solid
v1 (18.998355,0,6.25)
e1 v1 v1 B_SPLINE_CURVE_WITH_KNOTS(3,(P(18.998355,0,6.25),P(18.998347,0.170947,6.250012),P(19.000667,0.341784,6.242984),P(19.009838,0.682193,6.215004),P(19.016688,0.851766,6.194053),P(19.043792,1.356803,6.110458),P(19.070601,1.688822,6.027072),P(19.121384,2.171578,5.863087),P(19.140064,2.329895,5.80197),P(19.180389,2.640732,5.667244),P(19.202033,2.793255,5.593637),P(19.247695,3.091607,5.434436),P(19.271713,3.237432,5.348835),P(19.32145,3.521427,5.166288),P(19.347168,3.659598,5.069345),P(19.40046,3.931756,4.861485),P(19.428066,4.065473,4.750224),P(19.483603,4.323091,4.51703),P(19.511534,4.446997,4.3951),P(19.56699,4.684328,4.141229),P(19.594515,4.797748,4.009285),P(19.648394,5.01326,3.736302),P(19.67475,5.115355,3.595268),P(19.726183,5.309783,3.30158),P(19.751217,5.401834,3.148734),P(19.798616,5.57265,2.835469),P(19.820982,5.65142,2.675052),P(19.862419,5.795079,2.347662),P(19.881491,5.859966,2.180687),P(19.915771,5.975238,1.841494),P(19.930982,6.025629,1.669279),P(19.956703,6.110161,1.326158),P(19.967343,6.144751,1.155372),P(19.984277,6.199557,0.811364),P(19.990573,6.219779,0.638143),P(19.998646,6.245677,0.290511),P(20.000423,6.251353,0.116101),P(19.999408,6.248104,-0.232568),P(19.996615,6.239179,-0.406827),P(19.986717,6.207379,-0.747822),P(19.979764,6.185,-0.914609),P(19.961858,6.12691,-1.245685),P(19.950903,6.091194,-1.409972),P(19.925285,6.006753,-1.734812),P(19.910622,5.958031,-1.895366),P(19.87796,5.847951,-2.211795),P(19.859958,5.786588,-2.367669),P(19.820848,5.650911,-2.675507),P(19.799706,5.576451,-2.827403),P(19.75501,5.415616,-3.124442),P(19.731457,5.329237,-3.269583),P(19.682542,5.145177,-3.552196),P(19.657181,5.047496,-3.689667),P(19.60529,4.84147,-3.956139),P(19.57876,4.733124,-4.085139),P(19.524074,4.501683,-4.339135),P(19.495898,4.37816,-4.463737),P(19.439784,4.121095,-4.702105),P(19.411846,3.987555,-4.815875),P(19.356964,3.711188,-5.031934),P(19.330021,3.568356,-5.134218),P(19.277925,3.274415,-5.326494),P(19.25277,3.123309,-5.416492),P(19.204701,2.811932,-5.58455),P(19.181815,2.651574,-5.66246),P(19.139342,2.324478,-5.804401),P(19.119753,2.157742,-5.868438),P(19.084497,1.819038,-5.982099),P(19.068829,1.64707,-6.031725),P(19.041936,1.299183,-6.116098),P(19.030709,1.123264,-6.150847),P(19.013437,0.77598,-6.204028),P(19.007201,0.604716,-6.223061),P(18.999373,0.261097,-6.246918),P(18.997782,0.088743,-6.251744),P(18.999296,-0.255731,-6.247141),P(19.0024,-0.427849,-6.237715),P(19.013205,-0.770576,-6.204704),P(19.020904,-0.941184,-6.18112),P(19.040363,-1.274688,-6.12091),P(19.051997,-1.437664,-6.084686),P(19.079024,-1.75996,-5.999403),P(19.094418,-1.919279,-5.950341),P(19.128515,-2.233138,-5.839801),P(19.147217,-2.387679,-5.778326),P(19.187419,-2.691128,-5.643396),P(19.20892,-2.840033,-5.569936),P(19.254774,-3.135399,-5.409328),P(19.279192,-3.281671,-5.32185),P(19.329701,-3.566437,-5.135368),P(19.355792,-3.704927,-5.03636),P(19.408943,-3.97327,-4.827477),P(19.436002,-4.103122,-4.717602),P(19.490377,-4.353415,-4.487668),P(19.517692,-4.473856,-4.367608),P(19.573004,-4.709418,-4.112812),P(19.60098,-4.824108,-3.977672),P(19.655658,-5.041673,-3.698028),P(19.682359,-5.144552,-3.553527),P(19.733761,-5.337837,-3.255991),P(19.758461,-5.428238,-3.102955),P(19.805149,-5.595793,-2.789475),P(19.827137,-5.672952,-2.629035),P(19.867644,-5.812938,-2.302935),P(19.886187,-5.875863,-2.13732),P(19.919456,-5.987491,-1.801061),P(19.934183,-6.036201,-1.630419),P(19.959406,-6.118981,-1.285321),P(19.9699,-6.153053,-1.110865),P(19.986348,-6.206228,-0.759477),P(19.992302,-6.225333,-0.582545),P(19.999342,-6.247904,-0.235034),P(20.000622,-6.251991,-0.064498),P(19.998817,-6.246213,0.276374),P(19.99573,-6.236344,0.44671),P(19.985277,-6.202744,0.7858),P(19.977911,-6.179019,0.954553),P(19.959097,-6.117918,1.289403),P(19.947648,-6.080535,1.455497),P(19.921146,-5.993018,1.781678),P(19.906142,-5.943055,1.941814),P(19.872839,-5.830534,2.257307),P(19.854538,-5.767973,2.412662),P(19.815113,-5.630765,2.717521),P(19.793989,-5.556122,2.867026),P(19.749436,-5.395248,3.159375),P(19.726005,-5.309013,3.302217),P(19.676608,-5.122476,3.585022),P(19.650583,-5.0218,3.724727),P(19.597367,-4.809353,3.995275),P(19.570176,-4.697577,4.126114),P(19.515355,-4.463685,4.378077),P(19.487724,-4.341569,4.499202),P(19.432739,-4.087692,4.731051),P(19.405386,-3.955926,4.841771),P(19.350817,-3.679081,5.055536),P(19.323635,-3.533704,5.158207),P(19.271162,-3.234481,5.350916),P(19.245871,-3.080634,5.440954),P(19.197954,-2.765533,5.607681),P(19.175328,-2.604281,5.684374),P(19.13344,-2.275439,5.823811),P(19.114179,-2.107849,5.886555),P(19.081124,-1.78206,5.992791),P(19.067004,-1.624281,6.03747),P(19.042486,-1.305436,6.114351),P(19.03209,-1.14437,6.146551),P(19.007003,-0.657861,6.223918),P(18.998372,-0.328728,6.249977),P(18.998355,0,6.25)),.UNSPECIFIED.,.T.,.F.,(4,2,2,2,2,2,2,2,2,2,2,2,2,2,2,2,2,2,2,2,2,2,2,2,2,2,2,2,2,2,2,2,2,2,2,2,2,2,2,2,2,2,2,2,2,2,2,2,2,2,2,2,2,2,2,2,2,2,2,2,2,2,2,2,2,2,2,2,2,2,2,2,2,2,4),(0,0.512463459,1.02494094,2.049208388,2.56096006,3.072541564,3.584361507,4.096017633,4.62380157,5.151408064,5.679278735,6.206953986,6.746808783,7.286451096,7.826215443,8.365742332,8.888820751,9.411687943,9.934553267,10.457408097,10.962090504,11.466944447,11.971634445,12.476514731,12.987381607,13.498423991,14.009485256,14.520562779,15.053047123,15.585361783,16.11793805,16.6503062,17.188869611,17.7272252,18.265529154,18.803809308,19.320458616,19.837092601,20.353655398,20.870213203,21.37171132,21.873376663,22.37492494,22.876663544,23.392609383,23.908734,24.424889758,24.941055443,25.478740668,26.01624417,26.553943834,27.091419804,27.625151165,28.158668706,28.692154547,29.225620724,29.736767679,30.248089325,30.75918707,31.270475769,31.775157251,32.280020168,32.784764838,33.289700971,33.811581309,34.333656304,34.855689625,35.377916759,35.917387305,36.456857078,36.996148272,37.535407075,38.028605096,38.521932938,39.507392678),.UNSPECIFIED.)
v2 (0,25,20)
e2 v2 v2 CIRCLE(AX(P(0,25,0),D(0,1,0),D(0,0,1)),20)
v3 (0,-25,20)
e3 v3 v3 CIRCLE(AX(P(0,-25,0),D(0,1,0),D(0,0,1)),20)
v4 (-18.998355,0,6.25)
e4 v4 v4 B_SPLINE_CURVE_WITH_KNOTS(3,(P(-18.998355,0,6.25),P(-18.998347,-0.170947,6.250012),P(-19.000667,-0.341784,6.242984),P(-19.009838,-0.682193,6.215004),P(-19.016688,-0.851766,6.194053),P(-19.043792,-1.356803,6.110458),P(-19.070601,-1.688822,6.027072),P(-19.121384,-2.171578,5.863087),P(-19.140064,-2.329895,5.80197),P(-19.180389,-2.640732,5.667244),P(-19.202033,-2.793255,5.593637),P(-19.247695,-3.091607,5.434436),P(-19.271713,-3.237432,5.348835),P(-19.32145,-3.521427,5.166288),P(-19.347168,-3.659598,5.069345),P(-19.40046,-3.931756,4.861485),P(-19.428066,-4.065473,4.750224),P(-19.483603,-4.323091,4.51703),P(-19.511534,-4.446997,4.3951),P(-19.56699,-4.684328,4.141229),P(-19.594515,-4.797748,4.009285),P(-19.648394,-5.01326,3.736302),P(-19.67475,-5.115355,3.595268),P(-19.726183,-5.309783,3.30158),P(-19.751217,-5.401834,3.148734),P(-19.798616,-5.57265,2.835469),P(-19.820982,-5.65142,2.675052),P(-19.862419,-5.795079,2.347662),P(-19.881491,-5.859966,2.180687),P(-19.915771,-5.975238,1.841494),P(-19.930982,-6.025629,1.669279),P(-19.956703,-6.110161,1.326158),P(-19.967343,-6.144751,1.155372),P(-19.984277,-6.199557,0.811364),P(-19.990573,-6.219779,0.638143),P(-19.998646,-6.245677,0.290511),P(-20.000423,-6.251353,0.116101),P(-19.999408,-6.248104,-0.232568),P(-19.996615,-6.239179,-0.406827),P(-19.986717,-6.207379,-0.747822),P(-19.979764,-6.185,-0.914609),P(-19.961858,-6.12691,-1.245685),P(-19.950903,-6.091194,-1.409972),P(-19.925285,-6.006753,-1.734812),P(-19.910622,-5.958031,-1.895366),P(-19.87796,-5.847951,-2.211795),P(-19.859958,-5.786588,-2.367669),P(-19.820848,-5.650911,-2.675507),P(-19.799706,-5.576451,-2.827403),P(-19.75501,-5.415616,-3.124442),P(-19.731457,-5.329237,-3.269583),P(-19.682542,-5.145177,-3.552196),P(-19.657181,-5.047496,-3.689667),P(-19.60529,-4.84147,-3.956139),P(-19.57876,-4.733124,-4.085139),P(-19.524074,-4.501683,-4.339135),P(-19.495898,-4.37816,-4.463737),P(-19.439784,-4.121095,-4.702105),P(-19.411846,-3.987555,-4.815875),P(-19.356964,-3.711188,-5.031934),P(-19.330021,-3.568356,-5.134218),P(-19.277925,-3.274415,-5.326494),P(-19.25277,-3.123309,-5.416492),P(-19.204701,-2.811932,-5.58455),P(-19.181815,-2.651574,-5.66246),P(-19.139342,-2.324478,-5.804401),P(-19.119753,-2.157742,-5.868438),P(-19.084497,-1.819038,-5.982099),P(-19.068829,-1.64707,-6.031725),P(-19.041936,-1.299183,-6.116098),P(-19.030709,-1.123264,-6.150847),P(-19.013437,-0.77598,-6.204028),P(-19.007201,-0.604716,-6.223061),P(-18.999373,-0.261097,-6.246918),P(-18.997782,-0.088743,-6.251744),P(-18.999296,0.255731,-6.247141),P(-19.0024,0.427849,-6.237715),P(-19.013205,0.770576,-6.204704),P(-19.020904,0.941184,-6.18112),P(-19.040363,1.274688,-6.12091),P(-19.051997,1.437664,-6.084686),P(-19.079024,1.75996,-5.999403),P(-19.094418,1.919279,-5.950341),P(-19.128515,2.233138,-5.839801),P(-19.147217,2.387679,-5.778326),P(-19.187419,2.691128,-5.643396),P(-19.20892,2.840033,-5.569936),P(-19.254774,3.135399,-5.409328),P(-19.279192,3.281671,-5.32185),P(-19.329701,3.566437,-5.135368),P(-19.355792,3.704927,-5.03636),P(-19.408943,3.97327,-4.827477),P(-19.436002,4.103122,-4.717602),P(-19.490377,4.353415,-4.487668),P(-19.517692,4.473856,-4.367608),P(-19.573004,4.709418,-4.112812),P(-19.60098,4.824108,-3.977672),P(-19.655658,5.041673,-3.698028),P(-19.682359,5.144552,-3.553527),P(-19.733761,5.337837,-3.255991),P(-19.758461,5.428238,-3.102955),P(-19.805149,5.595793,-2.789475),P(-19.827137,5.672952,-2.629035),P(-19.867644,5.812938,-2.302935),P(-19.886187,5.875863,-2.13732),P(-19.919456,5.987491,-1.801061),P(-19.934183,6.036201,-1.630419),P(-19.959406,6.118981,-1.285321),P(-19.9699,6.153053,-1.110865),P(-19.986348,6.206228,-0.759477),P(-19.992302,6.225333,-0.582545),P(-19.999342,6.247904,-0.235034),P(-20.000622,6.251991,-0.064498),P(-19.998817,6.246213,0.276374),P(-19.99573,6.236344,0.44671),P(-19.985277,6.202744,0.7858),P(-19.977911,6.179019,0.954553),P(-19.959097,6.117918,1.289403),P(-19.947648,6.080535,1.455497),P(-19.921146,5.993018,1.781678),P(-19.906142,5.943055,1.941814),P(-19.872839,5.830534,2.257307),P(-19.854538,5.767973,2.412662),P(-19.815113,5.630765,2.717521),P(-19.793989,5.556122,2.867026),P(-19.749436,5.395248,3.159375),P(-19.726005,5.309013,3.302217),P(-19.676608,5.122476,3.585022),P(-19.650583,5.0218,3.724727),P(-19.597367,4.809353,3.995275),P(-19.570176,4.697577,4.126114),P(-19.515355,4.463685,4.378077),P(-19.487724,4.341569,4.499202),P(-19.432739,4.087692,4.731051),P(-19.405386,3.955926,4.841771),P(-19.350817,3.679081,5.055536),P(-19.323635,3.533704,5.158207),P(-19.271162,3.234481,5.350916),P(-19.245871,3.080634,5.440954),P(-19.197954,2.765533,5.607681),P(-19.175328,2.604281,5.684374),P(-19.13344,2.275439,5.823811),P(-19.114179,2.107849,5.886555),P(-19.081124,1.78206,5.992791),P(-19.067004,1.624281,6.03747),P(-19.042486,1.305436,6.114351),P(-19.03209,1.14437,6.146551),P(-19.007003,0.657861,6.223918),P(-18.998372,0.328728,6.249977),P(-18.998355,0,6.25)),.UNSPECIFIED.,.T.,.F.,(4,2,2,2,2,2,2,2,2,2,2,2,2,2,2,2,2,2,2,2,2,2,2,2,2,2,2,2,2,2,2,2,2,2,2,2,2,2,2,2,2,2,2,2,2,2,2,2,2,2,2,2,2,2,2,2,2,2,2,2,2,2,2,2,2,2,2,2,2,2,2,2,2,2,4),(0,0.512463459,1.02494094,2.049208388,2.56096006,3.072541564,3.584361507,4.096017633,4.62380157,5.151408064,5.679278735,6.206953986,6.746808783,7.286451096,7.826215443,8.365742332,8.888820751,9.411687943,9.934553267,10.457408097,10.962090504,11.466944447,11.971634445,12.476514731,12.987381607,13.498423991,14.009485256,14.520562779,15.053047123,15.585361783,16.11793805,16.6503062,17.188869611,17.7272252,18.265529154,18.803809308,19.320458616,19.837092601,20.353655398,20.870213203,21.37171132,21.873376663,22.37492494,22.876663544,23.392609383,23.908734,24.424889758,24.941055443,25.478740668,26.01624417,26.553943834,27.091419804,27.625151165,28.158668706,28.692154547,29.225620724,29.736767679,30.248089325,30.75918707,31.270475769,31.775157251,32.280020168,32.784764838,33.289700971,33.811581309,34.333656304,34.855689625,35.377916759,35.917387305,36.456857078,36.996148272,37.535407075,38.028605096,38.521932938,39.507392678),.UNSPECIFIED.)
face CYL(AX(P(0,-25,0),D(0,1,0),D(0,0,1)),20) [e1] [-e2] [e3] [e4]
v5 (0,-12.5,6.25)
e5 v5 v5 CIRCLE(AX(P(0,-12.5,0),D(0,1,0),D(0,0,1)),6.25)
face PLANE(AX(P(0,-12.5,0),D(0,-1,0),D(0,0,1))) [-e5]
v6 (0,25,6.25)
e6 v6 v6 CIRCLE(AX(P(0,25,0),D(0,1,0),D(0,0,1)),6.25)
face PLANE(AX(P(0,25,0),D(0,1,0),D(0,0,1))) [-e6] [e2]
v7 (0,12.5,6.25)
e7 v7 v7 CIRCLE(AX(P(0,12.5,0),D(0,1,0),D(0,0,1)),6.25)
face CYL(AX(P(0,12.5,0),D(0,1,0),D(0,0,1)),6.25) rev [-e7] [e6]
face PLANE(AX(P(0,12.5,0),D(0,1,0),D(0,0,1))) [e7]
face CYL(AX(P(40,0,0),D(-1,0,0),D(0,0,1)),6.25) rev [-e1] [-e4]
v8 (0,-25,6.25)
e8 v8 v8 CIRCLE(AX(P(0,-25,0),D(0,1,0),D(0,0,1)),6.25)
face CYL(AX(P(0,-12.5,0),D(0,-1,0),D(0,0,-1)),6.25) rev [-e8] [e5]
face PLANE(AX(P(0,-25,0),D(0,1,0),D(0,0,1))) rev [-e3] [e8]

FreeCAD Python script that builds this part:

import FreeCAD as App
import Part
import Sketcher
Q = App.Units.Quantity

doc = App.newDocument("Part")
body = doc.addObject("PartDesign::Body", "Body")

# Sketch on XZ plane
sketch1 = body.newObject("Sketcher::SketchObject", "Sketch")
sketch1.AttachmentSupport = (doc.getObject("XZ_Plane"), [""])
sketch1.MapMode = "FlatFace"
sketch1.addGeometry(Part.Circle(App.Vector(0, 0, 0), App.Vector(0, 0, 1), 20), False)
sketch1.addConstraint([
    Sketcher.Constraint("Coincident", 0, 3, -1, 1),
    Sketcher.Constraint("Diameter", 0, Q("40 mm")),
])
pad1 = body.newObject("PartDesign::Pad", "Pad")
pad1.Profile = sketch1
pad1.Type = "TwoLengths"
pad1.Length = 25
pad1.Length2 = 25
pad1.Reversed = True

# Sketch on YZ plane
sketch2 = body.newObject("Sketcher::SketchObject", "Sketch001")
sketch2.AttachmentSupport = (doc.getObject("YZ_Plane"), [""])
sketch2.MapMode = "FlatFace"
sketch2.addGeometry(Part.Circle(App.Vector(0, 0, 0), App.Vector(0, 0, 1), 6), False)
sketch2.addConstraint([
    Sketcher.Constraint("Coincident", 0, 3, -1, 1),
    Sketcher.Constraint("Diameter", 0, Q("12.5 mm")),
])
pocket1 = body.newObject("PartDesign::Pocket", "Pocket")
pocket1.Profile = sketch2
pocket1.Type = "ThroughAll"
pocket1.Midplane = True

# Sketch on XZ plane
sketch3 = body.newObject("Sketcher::SketchObject", "Sketch002")
sketch3.AttachmentSupport = (doc.getObject("XZ_Plane"), [""])
sketch3.MapMode = "FlatFace"
sketch3.AttachmentOffset = App.Placement(App.Vector(0, 0, -25), App.Rotation())
sketch3.addGeometry(Part.Circle(App.Vector(0, 0, 0), App.Vector(0, 0, 1), 6), False)
sketch3.addConstraint([
    Sketcher.Constraint("Coincident", 0, 3, -1, 1),
    Sketcher.Constraint("Diameter", 0, Q("12.5 mm")),
])
pocket2 = body.newObject("PartDesign::Pocket", "Pocket001")
pocket2.Profile = sketch3
pocket2.Length = 12.5
pocket2.Reversed = True
doc.recompute()

mirrored = body.newObject("PartDesign::Mirrored", "Mirrored")
mirrored.Originals = [pocket2]
mirrored.MirrorPlane = (doc.getObject("XZ_Plane"), [""])
body.Tip = mirrored

doc.recompute()
